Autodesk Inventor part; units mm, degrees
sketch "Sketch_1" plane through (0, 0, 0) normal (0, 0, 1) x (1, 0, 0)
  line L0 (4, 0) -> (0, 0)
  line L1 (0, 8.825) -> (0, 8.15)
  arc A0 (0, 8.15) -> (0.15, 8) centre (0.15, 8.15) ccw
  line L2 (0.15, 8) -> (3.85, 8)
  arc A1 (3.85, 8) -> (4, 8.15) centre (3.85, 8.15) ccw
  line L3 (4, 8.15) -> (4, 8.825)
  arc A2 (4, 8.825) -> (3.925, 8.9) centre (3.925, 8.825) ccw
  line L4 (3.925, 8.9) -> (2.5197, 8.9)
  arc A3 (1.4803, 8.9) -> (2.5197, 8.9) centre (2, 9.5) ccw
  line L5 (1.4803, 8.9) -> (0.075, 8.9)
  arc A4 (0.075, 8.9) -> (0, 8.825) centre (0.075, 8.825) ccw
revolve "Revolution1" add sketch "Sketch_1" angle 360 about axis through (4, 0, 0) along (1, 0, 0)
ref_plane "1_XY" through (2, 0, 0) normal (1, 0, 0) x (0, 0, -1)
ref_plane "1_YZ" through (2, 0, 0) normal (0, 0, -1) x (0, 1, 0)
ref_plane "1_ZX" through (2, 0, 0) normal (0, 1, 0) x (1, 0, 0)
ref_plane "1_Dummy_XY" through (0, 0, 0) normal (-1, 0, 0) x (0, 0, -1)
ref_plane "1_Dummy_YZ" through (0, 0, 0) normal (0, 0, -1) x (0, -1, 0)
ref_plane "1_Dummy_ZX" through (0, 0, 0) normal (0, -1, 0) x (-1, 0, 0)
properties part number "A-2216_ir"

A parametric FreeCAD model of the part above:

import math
import FreeCAD as App
import Part
import Sketcher
from FreeCAD import Vector
Q = App.Units.Quantity

doc = App.newDocument("Part")
body = doc.addObject("PartDesign::Body", "Body")

sketch1 = doc.addObject("Sketcher::SketchObject", "Sketch")
body.addObject(sketch1)
sketch1.AttachmentSupport = (doc.XY_Plane, [""])
sketch1.MapMode = "FlatFace"
sketch1.addGeometry([
    Part.ArcOfCircle(Part.Circle(Vector(0.075, 8.825, 0), Vector(0, 0, 1), 0.075), math.radians(90), math.radians(180)),
    Part.LineSegment(Vector(0, 8.825, 0), Vector(0, 8.15, 0)),
    Part.ArcOfCircle(Part.Circle(Vector(0.15, 8.15, 0), Vector(0, 0, 1), 0.15), math.radians(180), math.radians(270)),
    Part.LineSegment(Vector(0.15, 8, 0), Vector(3.85, 8, 0)),
    Part.ArcOfCircle(Part.Circle(Vector(3.85, 8.15, 0), Vector(0, 0, 1), 0.15), math.radians(-90), math.radians(0)),
    Part.LineSegment(Vector(4, 8.15, 0), Vector(4, 8.825, 0)),
    Part.ArcOfCircle(Part.Circle(Vector(3.925, 8.825, 0), Vector(0, 0, 1), 0.075), math.radians(0), math.radians(90)),
    Part.LineSegment(Vector(3.925, 8.9, 0), Vector(2.5197, 8.9, 0)),
    Part.ArcOfCircle(Part.Circle(Vector(2, 9.5, 0), Vector(0, 0, 1), 0.793781), math.radians(-130.898019), math.radians(-49.101981)),
    Part.LineSegment(Vector(1.4803, 8.9, 0), Vector(0.075, 8.9, 0)),
], False)
sketch1.addConstraint([
    Sketcher.Constraint("Tangent", 0, 2, 1, 1),
    Sketcher.Constraint("Tangent", 1, 2, 2, 1),
    Sketcher.Constraint("Tangent", 2, 2, 3, 1),
    Sketcher.Constraint("Tangent", 3, 2, 4, 1),
    Sketcher.Constraint("Tangent", 4, 2, 5, 1),
    Sketcher.Constraint("Tangent", 5, 2, 6, 1),
    Sketcher.Constraint("Tangent", 6, 2, 7, 1),
    Sketcher.Constraint("Coincident", 7, 2, 8, 2),
    Sketcher.Constraint("Coincident", 8, 1, 9, 1),
    Sketcher.Constraint("Tangent", 9, 2, 0, 1),
    Sketcher.Constraint("Vertical", 1),
    Sketcher.Constraint("Horizontal", 3),
    Sketcher.Constraint("Vertical", 5),
    Sketcher.Constraint("Horizontal", 7),
    Sketcher.Constraint("Horizontal", 9),
    Sketcher.Constraint("Equal", 2, 4),
    Sketcher.Constraint("Equal", 0, 6),
    Sketcher.Constraint("PointOnObject", 0, 2, -2),
    Sketcher.Constraint("Horizontal", 0, 3, 6, 3),
    Sketcher.Constraint("Equal", 7, 9),
    Sketcher.Constraint("Radius", 2, Q("0.15 mm")),
    Sketcher.Constraint("DistanceX", 3, 1, 3, 2, Q("3.7 mm")),
    Sketcher.Constraint("DistanceY", -1, 1, 2, 2, Q("8 mm")),
    Sketcher.Constraint("Radius", 0, Q("0.075 mm")),
    Sketcher.Constraint("DistanceY", -1, 1, 8, 3, Q("9.5 mm")),
    Sketcher.Constraint("DistanceY", -1, 1, 6, 2, Q("8.9 mm")),
    Sketcher.Constraint("Radius", 8, Q("0.7938 mm")),
])
revolution = doc.addObject("PartDesign::Revolution", "Revolution")
body.addObject(revolution)
revolution.Profile = sketch1
revolution.ReferenceAxis = (sketch1, ["H_Axis"])
revolution.Angle = 360

doc.recompute()
